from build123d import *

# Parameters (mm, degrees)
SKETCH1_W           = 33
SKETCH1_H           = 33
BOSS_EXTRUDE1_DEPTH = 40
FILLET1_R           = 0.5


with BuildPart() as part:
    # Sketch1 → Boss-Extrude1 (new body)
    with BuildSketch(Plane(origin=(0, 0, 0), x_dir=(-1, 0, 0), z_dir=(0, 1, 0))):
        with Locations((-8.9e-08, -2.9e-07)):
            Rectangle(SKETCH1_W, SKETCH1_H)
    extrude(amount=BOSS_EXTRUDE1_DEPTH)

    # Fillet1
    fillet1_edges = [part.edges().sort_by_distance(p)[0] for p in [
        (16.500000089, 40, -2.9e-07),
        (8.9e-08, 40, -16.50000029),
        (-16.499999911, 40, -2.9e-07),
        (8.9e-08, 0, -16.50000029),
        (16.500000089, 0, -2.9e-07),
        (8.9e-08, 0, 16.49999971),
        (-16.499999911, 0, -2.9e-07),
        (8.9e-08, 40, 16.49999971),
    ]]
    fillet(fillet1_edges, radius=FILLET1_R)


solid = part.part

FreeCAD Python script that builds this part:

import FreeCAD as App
import Part
import Sketcher
from FreeCAD import Vector


def edges_at(feature, points):
    """Names of the edges that pass closest to the given points."""
    edges = feature.Shape.Edges
    near = lambda p: min(range(len(edges)), key=lambda i: edges[i].distToShape(Part.Vertex(*p))[0])
    return sorted({f"Edge{near(p) + 1}" for p in points})

doc = App.newDocument("Part")
body = doc.addObject("PartDesign::Body", "Body")

# Sketch on XZ plane
sketch1 = doc.addObject("Sketcher::SketchObject", "Sketch")
body.addObject(sketch1)
sketch1.AttachmentSupport = (doc.XZ_Plane, [""])
sketch1.MapMode = "FlatFace"
sketch1.addGeometry([
    Part.LineSegment(Vector(16, 16, 0), Vector(16, -16, 0)),
    Part.LineSegment(Vector(16, -16, 0), Vector(-16, -16, 0)),
    Part.LineSegment(Vector(-16, -16, 0), Vector(-16, 16, 0)),
    Part.LineSegment(Vector(-16, 16, 0), Vector(16, 16, 0)),
], False)
sketch1.addConstraint([
    Sketcher.Constraint("Coincident", 0, 2, 1, 1),
    Sketcher.Constraint("Coincident", 1, 2, 2, 1),
    Sketcher.Constraint("Coincident", 2, 2, 3, 1),
    Sketcher.Constraint("Coincident", 3, 2, 0, 1),
    Sketcher.Constraint("Vertical", 0),
    Sketcher.Constraint("Horizontal", 1),
    Sketcher.Constraint("Vertical", 2),
    Sketcher.Constraint("Horizontal", 3),
    Sketcher.Constraint("Symmetric", 0, 2, 2, 2, -1, 1),
    Sketcher.Constraint("Equal", 3, 0),
    Sketcher.Constraint("DistanceX", 1, 2, 1, 1, 33.0),
])
pad1 = doc.addObject("PartDesign::Pad", "Pad")
body.addObject(pad1)
pad1.Profile = sketch1
pad1.Length = 40
pad1.Reversed = True
doc.recompute()

fillet = doc.addObject("PartDesign::Fillet", "Fillet")
body.addObject(fillet)
fillet.Base = (pad1, edges_at(pad1, [
    (16.5, 40, 0),
    (0, 40, -16.5),
    (-16.5, 40, 0),
    (0, 0, -16.5),
    (16.5, 0, 0),
    (0, 0, 16.5),
    (-16.5, 0, 0),
    (0, 40, 16.5),
]))
fillet.Radius = 0.5

doc.recompute()
